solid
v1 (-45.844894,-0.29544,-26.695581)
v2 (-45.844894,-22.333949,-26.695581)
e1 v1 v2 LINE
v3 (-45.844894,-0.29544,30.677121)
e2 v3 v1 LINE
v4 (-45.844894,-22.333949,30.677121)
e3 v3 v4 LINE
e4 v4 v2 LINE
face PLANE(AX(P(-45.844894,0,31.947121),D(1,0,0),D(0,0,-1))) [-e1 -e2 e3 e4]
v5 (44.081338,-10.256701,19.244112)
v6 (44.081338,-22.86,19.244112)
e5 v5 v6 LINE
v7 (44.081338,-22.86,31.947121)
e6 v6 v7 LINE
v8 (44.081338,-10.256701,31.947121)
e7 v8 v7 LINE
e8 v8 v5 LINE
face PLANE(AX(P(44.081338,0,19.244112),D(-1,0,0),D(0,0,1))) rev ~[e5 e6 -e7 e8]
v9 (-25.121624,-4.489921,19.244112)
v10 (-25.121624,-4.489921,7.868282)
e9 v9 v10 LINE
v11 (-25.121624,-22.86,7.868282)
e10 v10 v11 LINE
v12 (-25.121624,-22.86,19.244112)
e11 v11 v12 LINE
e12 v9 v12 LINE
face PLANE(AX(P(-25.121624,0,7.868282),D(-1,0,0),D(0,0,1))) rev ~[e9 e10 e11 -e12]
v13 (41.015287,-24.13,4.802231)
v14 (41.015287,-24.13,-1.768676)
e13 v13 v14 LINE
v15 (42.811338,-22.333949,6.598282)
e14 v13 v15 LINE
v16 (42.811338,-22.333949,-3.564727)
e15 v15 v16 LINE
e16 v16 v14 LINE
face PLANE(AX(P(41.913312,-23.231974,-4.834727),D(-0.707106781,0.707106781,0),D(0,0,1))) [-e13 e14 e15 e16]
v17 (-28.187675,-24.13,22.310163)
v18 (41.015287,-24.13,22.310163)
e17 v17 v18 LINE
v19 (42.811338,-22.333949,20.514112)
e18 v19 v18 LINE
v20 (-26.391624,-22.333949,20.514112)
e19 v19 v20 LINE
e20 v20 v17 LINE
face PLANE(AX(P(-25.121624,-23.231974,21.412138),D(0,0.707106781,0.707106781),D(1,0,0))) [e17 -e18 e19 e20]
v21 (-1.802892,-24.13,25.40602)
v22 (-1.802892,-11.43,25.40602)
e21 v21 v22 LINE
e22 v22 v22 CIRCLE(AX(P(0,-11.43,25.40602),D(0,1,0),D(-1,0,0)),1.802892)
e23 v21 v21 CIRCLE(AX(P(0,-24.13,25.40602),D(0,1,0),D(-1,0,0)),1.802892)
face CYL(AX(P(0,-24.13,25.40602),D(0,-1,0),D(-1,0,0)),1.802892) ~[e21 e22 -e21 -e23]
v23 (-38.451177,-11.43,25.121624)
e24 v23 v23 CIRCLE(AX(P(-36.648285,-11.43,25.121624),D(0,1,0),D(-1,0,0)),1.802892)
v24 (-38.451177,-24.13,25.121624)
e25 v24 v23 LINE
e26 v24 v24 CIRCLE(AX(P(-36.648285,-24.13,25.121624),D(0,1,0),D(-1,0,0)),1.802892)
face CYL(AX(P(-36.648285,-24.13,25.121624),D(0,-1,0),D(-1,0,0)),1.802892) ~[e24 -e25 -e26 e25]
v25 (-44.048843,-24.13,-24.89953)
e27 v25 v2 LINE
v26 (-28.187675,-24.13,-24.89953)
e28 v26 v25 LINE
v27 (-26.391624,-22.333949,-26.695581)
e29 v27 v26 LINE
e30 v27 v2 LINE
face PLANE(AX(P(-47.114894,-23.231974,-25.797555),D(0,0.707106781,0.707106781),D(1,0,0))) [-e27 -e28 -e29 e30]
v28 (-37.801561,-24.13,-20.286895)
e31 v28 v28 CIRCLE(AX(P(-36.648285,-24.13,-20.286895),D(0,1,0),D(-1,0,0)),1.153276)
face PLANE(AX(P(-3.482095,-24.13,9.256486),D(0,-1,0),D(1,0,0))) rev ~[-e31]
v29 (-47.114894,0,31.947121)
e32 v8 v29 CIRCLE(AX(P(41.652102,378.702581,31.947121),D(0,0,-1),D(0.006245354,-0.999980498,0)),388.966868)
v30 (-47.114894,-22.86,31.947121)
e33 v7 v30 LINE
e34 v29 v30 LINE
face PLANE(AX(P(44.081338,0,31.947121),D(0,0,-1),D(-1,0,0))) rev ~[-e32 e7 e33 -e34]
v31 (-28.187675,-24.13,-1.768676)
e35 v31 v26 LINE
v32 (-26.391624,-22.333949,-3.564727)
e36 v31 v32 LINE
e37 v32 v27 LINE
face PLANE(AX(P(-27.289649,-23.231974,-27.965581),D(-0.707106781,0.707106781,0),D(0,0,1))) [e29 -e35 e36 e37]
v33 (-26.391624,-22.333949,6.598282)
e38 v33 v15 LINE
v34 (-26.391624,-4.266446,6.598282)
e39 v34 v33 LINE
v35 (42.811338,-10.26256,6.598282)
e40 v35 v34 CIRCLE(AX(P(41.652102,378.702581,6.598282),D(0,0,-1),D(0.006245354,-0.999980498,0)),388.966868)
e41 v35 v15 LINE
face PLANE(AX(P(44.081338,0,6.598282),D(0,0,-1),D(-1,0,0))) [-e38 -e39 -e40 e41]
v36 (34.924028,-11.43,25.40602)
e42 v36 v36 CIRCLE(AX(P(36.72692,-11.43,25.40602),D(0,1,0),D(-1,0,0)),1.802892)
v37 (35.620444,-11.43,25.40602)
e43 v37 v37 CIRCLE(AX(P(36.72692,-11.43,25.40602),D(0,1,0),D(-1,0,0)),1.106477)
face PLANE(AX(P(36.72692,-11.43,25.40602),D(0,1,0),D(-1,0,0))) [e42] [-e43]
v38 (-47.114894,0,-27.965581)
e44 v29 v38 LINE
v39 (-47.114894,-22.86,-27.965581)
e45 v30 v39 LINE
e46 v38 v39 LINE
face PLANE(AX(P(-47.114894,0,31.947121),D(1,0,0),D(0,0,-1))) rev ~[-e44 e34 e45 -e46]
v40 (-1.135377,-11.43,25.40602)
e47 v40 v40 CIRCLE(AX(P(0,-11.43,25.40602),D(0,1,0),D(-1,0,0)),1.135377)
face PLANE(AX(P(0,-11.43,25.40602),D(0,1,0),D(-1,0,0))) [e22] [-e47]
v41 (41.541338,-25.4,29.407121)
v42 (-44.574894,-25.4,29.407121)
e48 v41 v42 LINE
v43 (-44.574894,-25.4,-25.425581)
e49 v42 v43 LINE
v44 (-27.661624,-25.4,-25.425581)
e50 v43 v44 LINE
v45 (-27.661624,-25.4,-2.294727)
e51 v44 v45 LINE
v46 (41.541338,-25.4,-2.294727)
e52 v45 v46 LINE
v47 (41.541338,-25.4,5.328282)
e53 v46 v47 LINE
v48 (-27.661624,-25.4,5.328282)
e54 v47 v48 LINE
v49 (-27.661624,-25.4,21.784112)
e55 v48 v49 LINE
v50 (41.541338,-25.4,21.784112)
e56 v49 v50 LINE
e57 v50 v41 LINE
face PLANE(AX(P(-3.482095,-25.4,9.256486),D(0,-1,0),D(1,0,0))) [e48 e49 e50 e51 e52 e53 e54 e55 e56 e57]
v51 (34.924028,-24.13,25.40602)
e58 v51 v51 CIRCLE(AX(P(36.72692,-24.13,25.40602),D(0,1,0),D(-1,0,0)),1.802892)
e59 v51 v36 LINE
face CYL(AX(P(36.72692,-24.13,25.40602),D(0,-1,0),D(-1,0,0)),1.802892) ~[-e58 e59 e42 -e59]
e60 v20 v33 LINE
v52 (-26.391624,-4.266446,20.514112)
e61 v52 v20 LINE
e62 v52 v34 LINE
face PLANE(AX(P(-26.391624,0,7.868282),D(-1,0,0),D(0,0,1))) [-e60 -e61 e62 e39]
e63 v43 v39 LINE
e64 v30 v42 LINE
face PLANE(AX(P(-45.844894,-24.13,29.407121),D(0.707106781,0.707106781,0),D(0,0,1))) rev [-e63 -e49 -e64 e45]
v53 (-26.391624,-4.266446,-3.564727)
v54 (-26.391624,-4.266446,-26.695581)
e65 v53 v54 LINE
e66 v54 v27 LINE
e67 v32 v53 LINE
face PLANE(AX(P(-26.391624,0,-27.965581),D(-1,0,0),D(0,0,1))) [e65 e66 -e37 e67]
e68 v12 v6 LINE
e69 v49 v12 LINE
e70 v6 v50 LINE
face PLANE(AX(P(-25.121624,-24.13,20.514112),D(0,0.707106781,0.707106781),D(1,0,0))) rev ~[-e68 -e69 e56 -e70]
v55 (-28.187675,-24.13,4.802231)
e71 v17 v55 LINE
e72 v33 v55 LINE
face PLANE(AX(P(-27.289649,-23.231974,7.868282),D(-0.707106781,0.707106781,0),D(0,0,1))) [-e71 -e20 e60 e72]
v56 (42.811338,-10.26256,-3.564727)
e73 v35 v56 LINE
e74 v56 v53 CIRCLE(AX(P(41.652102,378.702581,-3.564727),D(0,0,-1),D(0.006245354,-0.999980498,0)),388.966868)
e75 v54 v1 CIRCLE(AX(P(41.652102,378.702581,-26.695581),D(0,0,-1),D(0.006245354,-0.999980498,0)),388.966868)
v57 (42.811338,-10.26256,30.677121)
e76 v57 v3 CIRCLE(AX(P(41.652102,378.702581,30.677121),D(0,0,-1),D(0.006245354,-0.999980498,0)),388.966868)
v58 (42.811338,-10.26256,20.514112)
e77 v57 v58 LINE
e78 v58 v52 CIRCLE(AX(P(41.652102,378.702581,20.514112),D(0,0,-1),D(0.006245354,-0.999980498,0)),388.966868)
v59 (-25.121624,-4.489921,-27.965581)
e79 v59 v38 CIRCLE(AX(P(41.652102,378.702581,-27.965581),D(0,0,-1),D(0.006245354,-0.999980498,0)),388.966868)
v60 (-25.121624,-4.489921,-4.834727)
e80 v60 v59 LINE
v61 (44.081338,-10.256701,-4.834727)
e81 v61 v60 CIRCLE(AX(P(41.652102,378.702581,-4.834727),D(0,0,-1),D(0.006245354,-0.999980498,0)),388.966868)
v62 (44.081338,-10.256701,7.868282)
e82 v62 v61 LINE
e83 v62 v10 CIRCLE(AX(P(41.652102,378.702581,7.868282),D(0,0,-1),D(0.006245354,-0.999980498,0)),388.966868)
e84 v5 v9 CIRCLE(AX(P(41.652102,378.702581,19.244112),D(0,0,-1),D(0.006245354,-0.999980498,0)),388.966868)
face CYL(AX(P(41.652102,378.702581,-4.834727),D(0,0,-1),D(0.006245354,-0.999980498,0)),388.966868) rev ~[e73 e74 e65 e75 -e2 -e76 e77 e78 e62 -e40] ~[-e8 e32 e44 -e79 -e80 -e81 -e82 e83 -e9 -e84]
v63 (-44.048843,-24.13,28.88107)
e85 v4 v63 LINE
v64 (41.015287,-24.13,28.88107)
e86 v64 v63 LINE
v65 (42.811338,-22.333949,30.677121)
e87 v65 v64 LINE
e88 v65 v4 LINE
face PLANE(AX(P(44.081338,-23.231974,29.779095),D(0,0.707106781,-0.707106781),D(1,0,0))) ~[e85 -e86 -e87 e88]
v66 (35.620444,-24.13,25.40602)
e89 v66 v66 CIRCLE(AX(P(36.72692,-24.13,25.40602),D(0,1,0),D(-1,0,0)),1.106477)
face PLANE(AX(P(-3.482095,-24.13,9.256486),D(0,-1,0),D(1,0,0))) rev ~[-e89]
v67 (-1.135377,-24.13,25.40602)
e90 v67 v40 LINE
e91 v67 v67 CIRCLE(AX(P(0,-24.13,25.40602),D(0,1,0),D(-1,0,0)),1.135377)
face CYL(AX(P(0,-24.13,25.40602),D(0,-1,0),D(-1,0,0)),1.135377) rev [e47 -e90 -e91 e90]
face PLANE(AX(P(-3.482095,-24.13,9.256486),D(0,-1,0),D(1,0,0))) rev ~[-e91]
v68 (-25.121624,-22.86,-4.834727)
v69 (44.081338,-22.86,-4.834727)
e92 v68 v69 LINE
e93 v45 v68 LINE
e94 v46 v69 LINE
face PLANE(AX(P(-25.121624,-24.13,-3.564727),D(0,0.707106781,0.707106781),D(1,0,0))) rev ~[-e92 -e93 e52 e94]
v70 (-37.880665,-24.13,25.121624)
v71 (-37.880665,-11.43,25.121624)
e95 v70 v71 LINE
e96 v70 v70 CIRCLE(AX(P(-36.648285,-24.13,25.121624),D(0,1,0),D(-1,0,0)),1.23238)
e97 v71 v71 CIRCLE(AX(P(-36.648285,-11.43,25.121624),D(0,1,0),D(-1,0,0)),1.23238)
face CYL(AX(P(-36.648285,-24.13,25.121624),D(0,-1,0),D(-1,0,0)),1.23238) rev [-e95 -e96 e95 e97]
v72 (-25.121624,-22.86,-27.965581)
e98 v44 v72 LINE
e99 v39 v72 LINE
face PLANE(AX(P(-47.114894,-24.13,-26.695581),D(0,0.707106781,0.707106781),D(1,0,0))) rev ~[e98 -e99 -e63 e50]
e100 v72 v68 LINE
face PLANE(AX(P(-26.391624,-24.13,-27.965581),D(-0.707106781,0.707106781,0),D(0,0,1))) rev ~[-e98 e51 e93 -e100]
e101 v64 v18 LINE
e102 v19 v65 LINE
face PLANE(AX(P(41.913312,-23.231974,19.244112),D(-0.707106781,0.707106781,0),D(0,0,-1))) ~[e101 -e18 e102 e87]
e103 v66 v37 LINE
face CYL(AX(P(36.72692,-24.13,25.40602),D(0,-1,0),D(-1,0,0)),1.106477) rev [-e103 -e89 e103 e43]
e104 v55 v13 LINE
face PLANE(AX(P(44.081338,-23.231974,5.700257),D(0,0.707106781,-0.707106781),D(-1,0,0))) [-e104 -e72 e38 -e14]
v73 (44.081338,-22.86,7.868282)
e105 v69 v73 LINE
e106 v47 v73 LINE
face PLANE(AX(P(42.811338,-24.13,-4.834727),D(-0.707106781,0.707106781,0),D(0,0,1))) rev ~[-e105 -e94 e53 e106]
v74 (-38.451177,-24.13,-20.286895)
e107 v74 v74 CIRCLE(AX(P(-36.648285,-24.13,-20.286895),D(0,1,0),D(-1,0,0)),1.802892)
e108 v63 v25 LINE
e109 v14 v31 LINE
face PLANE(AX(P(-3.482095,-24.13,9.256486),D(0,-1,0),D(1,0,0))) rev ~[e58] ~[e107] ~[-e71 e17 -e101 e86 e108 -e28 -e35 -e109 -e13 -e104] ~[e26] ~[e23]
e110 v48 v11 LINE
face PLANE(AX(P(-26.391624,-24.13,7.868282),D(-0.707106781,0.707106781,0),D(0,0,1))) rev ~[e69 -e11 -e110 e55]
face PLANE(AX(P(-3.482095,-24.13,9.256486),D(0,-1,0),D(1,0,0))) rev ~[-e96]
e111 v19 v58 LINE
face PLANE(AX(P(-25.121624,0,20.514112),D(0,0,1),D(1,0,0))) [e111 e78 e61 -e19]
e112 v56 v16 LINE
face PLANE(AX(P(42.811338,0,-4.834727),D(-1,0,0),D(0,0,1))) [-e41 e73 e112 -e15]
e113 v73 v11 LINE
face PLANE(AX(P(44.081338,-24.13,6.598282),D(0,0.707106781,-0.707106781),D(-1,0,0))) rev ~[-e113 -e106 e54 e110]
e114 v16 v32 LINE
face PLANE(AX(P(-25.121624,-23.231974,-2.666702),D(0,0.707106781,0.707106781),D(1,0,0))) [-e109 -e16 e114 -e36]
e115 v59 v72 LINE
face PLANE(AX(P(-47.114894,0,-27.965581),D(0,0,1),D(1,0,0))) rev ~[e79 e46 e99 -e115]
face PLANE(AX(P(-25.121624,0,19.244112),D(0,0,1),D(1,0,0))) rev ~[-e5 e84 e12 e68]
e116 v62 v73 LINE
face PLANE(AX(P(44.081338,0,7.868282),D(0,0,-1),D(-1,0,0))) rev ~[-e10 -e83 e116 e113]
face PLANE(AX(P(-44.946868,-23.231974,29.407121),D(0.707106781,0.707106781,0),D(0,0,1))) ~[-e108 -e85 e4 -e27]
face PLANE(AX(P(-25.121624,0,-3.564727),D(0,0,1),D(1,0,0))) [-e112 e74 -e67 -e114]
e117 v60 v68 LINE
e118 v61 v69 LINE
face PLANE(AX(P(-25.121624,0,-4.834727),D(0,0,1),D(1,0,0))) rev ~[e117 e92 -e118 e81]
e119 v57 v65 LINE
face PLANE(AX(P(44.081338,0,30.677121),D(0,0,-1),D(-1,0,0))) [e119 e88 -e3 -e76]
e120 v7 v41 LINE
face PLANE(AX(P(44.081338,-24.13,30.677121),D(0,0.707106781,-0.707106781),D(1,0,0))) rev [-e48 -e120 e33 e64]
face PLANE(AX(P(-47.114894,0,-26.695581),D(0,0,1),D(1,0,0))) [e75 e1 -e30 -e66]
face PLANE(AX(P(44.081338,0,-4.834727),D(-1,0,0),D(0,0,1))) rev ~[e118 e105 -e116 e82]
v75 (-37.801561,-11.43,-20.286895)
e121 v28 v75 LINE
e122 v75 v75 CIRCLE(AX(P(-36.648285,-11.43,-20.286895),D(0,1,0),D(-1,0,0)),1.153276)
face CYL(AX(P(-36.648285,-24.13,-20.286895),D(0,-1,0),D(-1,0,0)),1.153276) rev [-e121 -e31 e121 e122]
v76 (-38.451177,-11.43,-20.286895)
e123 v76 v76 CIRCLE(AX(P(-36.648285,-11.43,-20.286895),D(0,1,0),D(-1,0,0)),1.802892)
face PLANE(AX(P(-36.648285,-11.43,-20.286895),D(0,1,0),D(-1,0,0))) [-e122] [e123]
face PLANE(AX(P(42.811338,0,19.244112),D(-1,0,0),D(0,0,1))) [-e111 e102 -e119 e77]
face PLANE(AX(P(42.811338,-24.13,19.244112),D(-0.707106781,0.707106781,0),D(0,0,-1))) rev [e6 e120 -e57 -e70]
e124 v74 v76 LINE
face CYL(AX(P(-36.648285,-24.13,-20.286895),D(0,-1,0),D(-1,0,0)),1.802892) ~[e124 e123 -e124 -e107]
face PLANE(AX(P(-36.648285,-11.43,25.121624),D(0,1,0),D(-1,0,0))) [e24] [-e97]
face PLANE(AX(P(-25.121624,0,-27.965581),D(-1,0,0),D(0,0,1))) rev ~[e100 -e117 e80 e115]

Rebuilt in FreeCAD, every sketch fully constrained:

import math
import FreeCAD as App
import Part
import Sketcher

V = App.Vector
Q = App.Units.Quantity


def edges_at(feature, points):
    """Names of the edges that pass closest to the given points."""
    edges = feature.Shape.Edges
    near = lambda p: min(range(len(edges)), key=lambda i: edges[i].distToShape(Part.Vertex(*p))[0])
    return sorted({f"Edge{near(p) + 1}" for p in points})


def faces_at(feature, points):
    """Names of the faces that lie closest to the given points."""
    faces = feature.Shape.Faces
    near = lambda p: min(range(len(faces)), key=lambda i: faces[i].distToShape(Part.Vertex(*p))[0])
    return sorted({f"Face{near(p) + 1}" for p in points})

doc = App.newDocument("Part")
body = doc.addObject("PartDesign::Body", "Body")

sketch1 = body.newObject("Sketcher::SketchObject", "Sketch")
sketch1.AttachmentSupport = (doc.getObject("XZ_Plane"), [""])
sketch1.MapMode = "FlatFace"
sketch1.addGeometry([
    Part.LineSegment(V(44, 32, 0), V(-47, 32, 0)),
    Part.LineSegment(V(-47, 32, 0), V(-47, -28, 0)),
    Part.LineSegment(V(-47, -28, 0), V(-25, -28, 0)),
    Part.LineSegment(V(-25, -28, 0), V(-25, -5, 0)),
    Part.LineSegment(V(-25, -5, 0), V(44, -5, 0)),
    Part.LineSegment(V(44, -5, 0), V(44, 8, 0)),
    Part.LineSegment(V(44, 8, 0), V(-25, 8, 0)),
    Part.LineSegment(V(-25, 8, 0), V(-25, 19, 0)),
    Part.LineSegment(V(-25, 19, 0), V(44, 19, 0)),
    Part.LineSegment(V(44, 19, 0), V(44, 32, 0)),
], False)
sketch1.addConstraint([
    Sketcher.Constraint("Coincident", 0, 2, 1, 1),
    Sketcher.Constraint("Coincident", 1, 2, 2, 1),
    Sketcher.Constraint("Coincident", 2, 2, 3, 1),
    Sketcher.Constraint("Coincident", 3, 2, 4, 1),
    Sketcher.Constraint("Coincident", 4, 2, 5, 1),
    Sketcher.Constraint("Coincident", 5, 2, 6, 1),
    Sketcher.Constraint("Coincident", 6, 2, 7, 1),
    Sketcher.Constraint("Coincident", 7, 2, 8, 1),
    Sketcher.Constraint("Coincident", 8, 2, 9, 1),
    Sketcher.Constraint("Coincident", 9, 2, 0, 1),
    Sketcher.Constraint("Horizontal", 0),
    Sketcher.Constraint("Vertical", 1),
    Sketcher.Constraint("Horizontal", 2),
    Sketcher.Constraint("Vertical", 3),
    Sketcher.Constraint("Horizontal", 4),
    Sketcher.Constraint("Vertical", 5),
    Sketcher.Constraint("Horizontal", 6),
    Sketcher.Constraint("Vertical", 7),
    Sketcher.Constraint("Horizontal", 8),
    Sketcher.Constraint("Vertical", 9),
    Sketcher.Constraint("Vertical", 3, 2, 6, 2),
    Sketcher.Constraint("Vertical", 5, 2, 8, 2),
    Sketcher.Constraint("Equal", 5, 9),
    Sketcher.Constraint("DistanceX", 0, 2, 0, 1, 91.196232),
    Sketcher.Constraint("DistanceX", 2, 1, 2, 2, 21.99327),
    Sketcher.Constraint("DistanceY", 5, 1, 5, 2, 12.70301),
    Sketcher.Constraint("DistanceY", 7, 1, 7, 2, 11.37583),
    Sketcher.Constraint("DistanceY", 1, 2, 1, 1, 59.912702),
    Sketcher.Constraint("DistanceY", -1, 1, 0, 2, 31.947121),
    Sketcher.Constraint("DistanceX", 0, 2, -1, 1, 47.114894),
])
pad1 = body.newObject("PartDesign::Pad", "Pad")
pad1.Profile = sketch1
pad1.Length = Q("1 in")
doc.recompute()

chamfer = body.newObject("PartDesign::Chamfer", "Chamfer")
chamfer.Base = (pad1, edges_at(pad1, [(-1.517, -25.4, 31.947)]))
chamfer.Size = Q("0.1 in")
doc.recompute()

chamfer2 = body.newObject("PartDesign::Chamfer", "Chamfer001")
chamfer2.Base = (chamfer, edges_at(chamfer, [
    (44.081, -25.4, 24.326),
    (9.48, -25.4, 19.244),
    (-25.122, -25.4, 13.556),
    (9.48, -25.4, 7.868),
    (44.081, -25.4, 1.517),
    (9.48, -25.4, -4.835),
    (-25.122, -25.4, -16.4),
    (-36.118, -25.4, -27.966),
    (-47.115, -25.4, 0.721),
]))
chamfer2.Size = Q("0.1 in")
doc.recompute()

thickness = body.newObject("PartDesign::Thickness", "Thickness")
thickness.Base = (chamfer2, faces_at(chamfer2, [(-1.517, 0, 1.991)]))
thickness.Value = Q("0.05 in")
thickness.Reversed = True
thickness.Join = "Intersection"

sketch2 = body.newObject("Sketcher::SketchObject", "Sketch001")
sketch2.AttachmentSupport = (doc.getObject("XY_Plane"), [""])
sketch2.MapMode = "FlatFace"
sketch2.AttachmentOffset = App.Placement(V(0, 0, -4.834727), App.Rotation())
sketch2.addGeometry([
    Part.LineSegment(V(44, 0, 0), V(44, -10, 0)),
    Part.ArcOfCircle(Part.Circle(V(42, 379, 0), V(0, 0, 1), 389), math.radians(-103.19), math.radians(-89.64)),
    Part.LineSegment(V(-47, 0, 0), V(44, 0, 0)),
], False)
sketch2.addConstraint([
    Sketcher.Constraint("Coincident", 0, 2, 1, 2),
    Sketcher.Constraint("Coincident", 1, 1, 2, 1),
    Sketcher.Constraint("Coincident", 2, 2, 0, 1),
    Sketcher.Constraint("Vertical", 0),
    Sketcher.Constraint("Horizontal", 2),
    Sketcher.Constraint("PointOnObject", 1, 1, -1),
    Sketcher.Constraint("Radius", 1, 388.966868),
    Sketcher.Constraint("DistanceY", 0, 2, 0, 1, 10.256701),
    Sketcher.Constraint("DistanceX", 2, 1, 2, 2, 91.196232),
    Sketcher.Constraint("DistanceX", -1, 1, 1, 3, 41.652102),
])
pocket1 = body.newObject("PartDesign::Pocket", "Pocket")
pocket1.Profile = sketch2
pocket1.Length = Q("3 in")
pocket1.Midplane = True

sketch3 = body.newObject("Sketcher::SketchObject", "Sketch002")
sketch3.AttachmentSupport = (doc.getObject("XZ_Plane"), [""])
sketch3.MapMode = "FlatFace"
sketch3.AttachmentOffset = App.Placement(V(0, 0, 0.95 * 25.4), App.Rotation())
sketch3.addGeometry([
    Part.Circle(V(36.7, 25.4, 0), V(0, 0, 1), 1.8),
    Part.Circle(V(36.7, 25.4, 0), V(0, 0, 1), 1.1),
    Part.Circle(V(0, 25.4, 0), V(0, 0, 1), 1.8),
    Part.Circle(V(0, 25.4, 0), V(0, 0, 1), 1.1),
    Part.Circle(V(-36.6, 25.1, 0), V(0, 0, 1), 1.8),
    Part.Circle(V(-36.6, 25.1, 0), V(0, 0, 1), 1.2),
    Part.Circle(V(-36.6, -20.3, 0), V(0, 0, 1), 1.8),
    Part.Circle(V(-36.6, -20.3, 0), V(0, 0, 1), 1.2),
], False)
sketch3.addConstraint([
    Sketcher.Constraint("Coincident", 1, 3, 0, 3),
    Sketcher.Constraint("Coincident", 3, 3, 2, 3),
    Sketcher.Constraint("Coincident", 5, 3, 4, 3),
    Sketcher.Constraint("Coincident", 7, 3, 6, 3),
    Sketcher.Constraint("Equal", 0, 2),
    Sketcher.Constraint("Equal", 2, 4),
    Sketcher.Constraint("Equal", 4, 6),
    Sketcher.Constraint("PointOnObject", 2, 3, -2),
    Sketcher.Constraint("Horizontal", 1, 3, 2, 3),
    Sketcher.Constraint("Vertical", 5, 3, 6, 3),
    Sketcher.Constraint("Diameter", 5, 2.464761),
    Sketcher.Constraint("Diameter", 7, 2.306552),
    Sketcher.Constraint("Diameter", 0, 3.605784),
    Sketcher.Constraint("Diameter", 1, 2.212953),
    Sketcher.Constraint("Diameter", 3, 2.270753),
    Sketcher.Constraint("DistanceX", -1, 1, 0, 3, 36.72692),
    Sketcher.Constraint("DistanceY", -1, 1, 0, 3, 25.40602),
    Sketcher.Constraint("DistanceY", 6, 3, 4, 3, 45.408519),
    Sketcher.Constraint("DistanceX", 4, 3, -1, 1, 36.648285),
    Sketcher.Constraint("DistanceY", -1, 1, 4, 3, 25.121624),
])
pad2 = body.newObject("PartDesign::Pad", "Pad001")
pad2.Profile = sketch3
pad2.Length = Q("0.5 in")
pad2.Reversed = True

doc.recompute()
